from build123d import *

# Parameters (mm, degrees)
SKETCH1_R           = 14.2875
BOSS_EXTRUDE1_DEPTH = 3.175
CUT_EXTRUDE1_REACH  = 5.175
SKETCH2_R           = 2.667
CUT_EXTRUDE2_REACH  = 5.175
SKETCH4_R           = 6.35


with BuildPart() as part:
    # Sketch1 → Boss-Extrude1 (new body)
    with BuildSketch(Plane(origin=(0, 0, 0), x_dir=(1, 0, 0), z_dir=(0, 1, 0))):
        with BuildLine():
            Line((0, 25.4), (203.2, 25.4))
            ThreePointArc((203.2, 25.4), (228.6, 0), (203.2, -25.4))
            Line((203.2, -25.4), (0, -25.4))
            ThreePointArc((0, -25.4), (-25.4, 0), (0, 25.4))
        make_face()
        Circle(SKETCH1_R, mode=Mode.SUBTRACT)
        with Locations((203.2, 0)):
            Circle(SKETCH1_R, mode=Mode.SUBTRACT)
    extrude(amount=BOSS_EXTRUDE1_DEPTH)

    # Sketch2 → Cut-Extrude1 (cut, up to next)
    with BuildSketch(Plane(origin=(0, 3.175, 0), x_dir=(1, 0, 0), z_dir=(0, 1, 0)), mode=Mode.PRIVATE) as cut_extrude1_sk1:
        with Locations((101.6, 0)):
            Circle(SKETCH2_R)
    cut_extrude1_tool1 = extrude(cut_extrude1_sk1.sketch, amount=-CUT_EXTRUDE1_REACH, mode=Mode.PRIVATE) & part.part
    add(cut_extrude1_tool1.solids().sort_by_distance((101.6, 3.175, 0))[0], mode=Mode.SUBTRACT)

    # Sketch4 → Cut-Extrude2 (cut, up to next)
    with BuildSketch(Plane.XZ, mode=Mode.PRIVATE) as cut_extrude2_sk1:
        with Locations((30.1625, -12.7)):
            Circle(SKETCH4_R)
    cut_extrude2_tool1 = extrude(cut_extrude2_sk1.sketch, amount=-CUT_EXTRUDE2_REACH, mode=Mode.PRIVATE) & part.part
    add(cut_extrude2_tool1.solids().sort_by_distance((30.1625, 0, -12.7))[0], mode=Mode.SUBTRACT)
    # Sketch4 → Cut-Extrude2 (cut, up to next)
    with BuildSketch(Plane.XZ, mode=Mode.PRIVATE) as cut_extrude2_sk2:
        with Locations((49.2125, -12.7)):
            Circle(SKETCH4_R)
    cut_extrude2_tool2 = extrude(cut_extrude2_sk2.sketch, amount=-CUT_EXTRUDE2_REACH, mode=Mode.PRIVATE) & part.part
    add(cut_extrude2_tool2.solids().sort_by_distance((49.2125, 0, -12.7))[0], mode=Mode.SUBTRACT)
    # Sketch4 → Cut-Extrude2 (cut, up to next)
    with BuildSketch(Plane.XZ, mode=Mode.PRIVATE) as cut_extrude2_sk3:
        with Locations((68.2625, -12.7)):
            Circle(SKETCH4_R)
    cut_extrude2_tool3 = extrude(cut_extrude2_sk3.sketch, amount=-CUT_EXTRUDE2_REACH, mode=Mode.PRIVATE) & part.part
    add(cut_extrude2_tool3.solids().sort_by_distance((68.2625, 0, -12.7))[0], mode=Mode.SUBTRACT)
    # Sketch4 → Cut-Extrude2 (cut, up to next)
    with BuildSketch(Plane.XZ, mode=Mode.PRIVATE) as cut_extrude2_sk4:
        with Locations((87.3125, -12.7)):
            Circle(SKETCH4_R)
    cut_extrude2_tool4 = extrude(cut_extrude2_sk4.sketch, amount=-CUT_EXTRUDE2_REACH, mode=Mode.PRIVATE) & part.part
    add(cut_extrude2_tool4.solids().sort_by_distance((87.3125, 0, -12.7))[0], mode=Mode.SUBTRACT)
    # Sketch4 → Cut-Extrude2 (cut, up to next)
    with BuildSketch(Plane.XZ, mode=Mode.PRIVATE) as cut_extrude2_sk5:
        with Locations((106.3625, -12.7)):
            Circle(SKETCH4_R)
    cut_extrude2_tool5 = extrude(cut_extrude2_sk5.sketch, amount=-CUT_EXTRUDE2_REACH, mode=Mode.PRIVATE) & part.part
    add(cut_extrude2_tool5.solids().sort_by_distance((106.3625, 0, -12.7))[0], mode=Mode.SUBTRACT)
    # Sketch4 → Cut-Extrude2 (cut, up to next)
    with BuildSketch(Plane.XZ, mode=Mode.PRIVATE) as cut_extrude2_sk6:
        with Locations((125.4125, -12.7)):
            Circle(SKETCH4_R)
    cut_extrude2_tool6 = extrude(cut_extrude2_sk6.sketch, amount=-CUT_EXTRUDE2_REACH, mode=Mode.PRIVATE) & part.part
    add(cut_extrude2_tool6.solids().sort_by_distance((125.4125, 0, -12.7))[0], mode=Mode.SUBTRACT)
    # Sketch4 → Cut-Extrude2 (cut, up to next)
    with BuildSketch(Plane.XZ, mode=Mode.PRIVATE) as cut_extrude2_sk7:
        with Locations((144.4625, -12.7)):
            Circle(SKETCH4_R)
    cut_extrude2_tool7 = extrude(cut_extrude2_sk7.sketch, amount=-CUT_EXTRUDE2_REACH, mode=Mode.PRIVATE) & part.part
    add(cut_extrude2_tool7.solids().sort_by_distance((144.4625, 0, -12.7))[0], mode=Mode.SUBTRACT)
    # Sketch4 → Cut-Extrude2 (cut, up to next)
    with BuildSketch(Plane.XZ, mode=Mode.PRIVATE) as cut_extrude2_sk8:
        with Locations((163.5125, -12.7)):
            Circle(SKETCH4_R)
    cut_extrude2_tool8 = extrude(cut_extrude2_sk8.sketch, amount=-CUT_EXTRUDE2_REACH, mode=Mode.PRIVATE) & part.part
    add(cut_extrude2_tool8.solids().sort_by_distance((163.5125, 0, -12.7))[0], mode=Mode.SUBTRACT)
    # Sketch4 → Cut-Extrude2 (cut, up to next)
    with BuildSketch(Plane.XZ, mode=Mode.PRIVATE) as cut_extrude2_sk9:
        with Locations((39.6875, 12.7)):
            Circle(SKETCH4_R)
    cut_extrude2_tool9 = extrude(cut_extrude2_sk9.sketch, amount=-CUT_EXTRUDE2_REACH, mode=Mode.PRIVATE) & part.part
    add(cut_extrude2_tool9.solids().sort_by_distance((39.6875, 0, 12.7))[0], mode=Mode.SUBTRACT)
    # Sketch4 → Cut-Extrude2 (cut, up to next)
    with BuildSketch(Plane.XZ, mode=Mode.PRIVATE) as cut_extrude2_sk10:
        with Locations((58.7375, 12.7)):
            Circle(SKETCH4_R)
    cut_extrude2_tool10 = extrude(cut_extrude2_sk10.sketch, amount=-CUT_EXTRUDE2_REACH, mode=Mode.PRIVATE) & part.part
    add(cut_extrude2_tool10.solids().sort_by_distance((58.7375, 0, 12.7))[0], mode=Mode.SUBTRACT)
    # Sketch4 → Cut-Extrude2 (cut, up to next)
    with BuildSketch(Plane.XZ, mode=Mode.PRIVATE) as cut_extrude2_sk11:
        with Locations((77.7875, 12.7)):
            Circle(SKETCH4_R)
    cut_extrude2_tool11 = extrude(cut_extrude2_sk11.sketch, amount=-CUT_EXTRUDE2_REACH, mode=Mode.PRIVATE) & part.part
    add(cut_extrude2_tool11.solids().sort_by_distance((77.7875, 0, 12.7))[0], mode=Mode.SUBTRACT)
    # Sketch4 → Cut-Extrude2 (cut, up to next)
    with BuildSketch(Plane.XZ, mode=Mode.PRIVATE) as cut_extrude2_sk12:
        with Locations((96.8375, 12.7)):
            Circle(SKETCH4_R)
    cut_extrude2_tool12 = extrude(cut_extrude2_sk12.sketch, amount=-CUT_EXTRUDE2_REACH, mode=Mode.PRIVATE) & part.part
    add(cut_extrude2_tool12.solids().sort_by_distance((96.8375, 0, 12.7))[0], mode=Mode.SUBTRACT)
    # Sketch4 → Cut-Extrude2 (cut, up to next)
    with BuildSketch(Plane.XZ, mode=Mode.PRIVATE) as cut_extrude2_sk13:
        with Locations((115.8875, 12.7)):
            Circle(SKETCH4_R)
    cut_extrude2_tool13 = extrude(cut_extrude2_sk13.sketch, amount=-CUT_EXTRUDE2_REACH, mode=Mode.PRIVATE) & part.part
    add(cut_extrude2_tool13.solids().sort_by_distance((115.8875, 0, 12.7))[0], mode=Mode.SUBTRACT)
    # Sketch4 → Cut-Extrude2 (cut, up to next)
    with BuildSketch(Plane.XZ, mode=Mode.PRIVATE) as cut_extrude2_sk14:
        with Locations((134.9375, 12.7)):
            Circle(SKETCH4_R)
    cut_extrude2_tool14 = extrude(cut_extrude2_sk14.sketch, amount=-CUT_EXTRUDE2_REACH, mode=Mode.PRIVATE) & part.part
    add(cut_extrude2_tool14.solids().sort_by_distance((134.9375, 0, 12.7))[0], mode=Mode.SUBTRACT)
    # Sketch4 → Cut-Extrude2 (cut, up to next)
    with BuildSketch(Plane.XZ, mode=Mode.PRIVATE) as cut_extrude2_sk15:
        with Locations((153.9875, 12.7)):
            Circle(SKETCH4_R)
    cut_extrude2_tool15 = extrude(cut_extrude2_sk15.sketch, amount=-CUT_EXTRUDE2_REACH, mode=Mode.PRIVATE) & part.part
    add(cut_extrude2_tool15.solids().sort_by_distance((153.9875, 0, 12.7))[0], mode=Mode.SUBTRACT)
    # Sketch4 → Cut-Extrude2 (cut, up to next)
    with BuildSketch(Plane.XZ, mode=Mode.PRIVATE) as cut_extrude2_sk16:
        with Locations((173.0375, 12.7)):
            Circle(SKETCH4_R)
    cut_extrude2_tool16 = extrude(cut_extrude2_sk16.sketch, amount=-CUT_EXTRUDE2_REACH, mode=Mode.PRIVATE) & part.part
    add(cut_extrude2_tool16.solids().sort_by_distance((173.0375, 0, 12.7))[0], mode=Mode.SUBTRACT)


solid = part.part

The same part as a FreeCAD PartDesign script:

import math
import FreeCAD as App
import Part
import Sketcher

V = App.Vector
Q = App.Units.Quantity

doc = App.newDocument("Part")
body = doc.addObject("PartDesign::Body", "Body")

# Sketch on XZ plane
sketch1 = doc.addObject("Sketcher::SketchObject", "Sketch")
body.addObject(sketch1)
sketch1.AttachmentSupport = (doc.XZ_Plane, [""])
sketch1.MapMode = "FlatFace"
sketch1.addGeometry([
    Part.LineSegment(V(203, -25, 0), V(0, -25, 0)),  # 0
    Part.ArcOfCircle(Part.Circle(V(0, 0, 0), V(0, 0, 1), 25), math.radians(90), math.radians(270)),  # 1
    Part.LineSegment(V(0, 25, 0), V(203, 25, 0)),  # 2
    Part.ArcOfCircle(Part.Circle(V(203, 0, 0), V(0, 0, 1), 25), math.radians(-90), math.radians(90)),  # 3
    Part.Circle(V(203, 0, 0), V(0, 0, 1), 14),  # 4
    Part.Circle(V(0, 0, 0), V(0, 0, 1), 14),  # 5
], False)
sketch1.addConstraint([
    Sketcher.Constraint("Tangent", 0, 2, 1, 2),
    Sketcher.Constraint("Tangent", 1, 1, 2, 1),
    Sketcher.Constraint("Tangent", 2, 2, 3, 2),
    Sketcher.Constraint("Tangent", 3, 1, 0, 1),
    Sketcher.Constraint("Horizontal", 0),
    Sketcher.Constraint("Horizontal", 2),
    Sketcher.Constraint("Coincident", 1, 3, -1, 1),
    Sketcher.Constraint("Coincident", 5, 3, -1, 1),
    Sketcher.Constraint("Coincident", 4, 3, 3, 3),
    Sketcher.Constraint("Equal", 4, 5),
    Sketcher.Constraint("Radius", 1, Q("1 in")),
    Sketcher.Constraint("DistanceX", 0, 2, 0, 1, Q("8 in")),
    Sketcher.Constraint("Diameter", 4, Q("1.125 in")),
])
pad1 = doc.addObject("PartDesign::Pad", "Pad")
body.addObject(pad1)
pad1.Profile = sketch1
pad1.Length = Q("0.125 in")
pad1.Reversed = True

# Sketch on XZ plane
sketch2 = doc.addObject("Sketcher::SketchObject", "Sketch001")
body.addObject(sketch2)
sketch2.AttachmentSupport = (doc.XZ_Plane, [""])
sketch2.MapMode = "FlatFace"
sketch2.AttachmentOffset = App.Placement(V(0, 0, -0.125 * 25.4), App.Rotation())
sketch2.addGeometry(Part.Circle(V(101.6, 0, 0), V(0, 0, 1), 2.7), False)
sketch2.addConstraint([
    Sketcher.Constraint("PointOnObject", 0, 3, -1),
    Sketcher.Constraint("Diameter", 0, Q("0.21 in")),
    Sketcher.Constraint("DistanceX", -1, 1, 0, 3, Q("4 in")),
])
pocket1 = doc.addObject("PartDesign::Pocket", "Pocket")
body.addObject(pocket1)
pocket1.Profile = sketch2
pocket1.Type = "UpToFirst"
pocket1.Reversed = True

# Sketch on XZ plane
sketch3 = doc.addObject("Sketcher::SketchObject", "Sketch002")
body.addObject(sketch3)
sketch3.AttachmentSupport = (doc.XZ_Plane, [""])
sketch3.MapMode = "FlatFace"
sketch3.addGeometry(Part.Circle(V(30, -13, 0), V(0, 0, 1), 6), False)
sketch3.addConstraint([
    Sketcher.Constraint("Diameter", 0, Q("0.5 in")),
    Sketcher.Constraint("DistanceY", 0, 3, -1, 1, Q("0.5 in")),
    Sketcher.Constraint("DistanceX", -1, 1, 0, 3, Q("1.1875 in")),
])
pocket2 = doc.addObject("PartDesign::Pocket", "Pocket001")
body.addObject(pocket2)
pocket2.Profile = sketch3
pocket2.Type = "UpToFirst"

# Sketch on XZ plane
sketch4 = doc.addObject("Sketcher::SketchObject", "Sketch003")
body.addObject(sketch4)
sketch4.AttachmentSupport = (doc.XZ_Plane, [""])
sketch4.MapMode = "FlatFace"
sketch4.addGeometry(Part.Circle(V(49, -13, 0), V(0, 0, 1), 6), False)
sketch4.addConstraint([
    Sketcher.Constraint("Diameter", 0, Q("0.5 in")),
    Sketcher.Constraint("DistanceY", 0, 3, -1, 1, Q("0.5 in")),
    Sketcher.Constraint("DistanceX", -1, 1, 0, 3, Q("1.9375 in")),
])
pocket3 = doc.addObject("PartDesign::Pocket", "Pocket002")
body.addObject(pocket3)
pocket3.Profile = sketch4
pocket3.Type = "UpToFirst"

# Sketch on XZ plane
sketch5 = doc.addObject("Sketcher::SketchObject", "Sketch004")
body.addObject(sketch5)
sketch5.AttachmentSupport = (doc.XZ_Plane, [""])
sketch5.MapMode = "FlatFace"
sketch5.addGeometry(Part.Circle(V(68, -13, 0), V(0, 0, 1), 6), False)
sketch5.addConstraint([
    Sketcher.Constraint("Diameter", 0, Q("0.5 in")),
    Sketcher.Constraint("DistanceY", 0, 3, -1, 1, Q("0.5 in")),
    Sketcher.Constraint("DistanceX", -1, 1, 0, 3, Q("2.6875 in")),
])
pocket4 = doc.addObject("PartDesign::Pocket", "Pocket003")
body.addObject(pocket4)
pocket4.Profile = sketch5
pocket4.Type = "UpToFirst"

# Sketch on XZ plane
sketch6 = doc.addObject("Sketcher::SketchObject", "Sketch005")
body.addObject(sketch6)
sketch6.AttachmentSupport = (doc.XZ_Plane, [""])
sketch6.MapMode = "FlatFace"
sketch6.addGeometry(Part.Circle(V(87, -13, 0), V(0, 0, 1), 6), False)
sketch6.addConstraint([
    Sketcher.Constraint("Diameter", 0, Q("0.5 in")),
    Sketcher.Constraint("DistanceY", 0, 3, -1, 1, Q("0.5 in")),
    Sketcher.Constraint("DistanceX", -1, 1, 0, 3, Q("3.4375 in")),
])
pocket5 = doc.addObject("PartDesign::Pocket", "Pocket004")
body.addObject(pocket5)
pocket5.Profile = sketch6
pocket5.Type = "UpToFirst"

# Sketch on XZ plane
sketch7 = doc.addObject("Sketcher::SketchObject", "Sketch006")
body.addObject(sketch7)
sketch7.AttachmentSupport = (doc.XZ_Plane, [""])
sketch7.MapMode = "FlatFace"
sketch7.addGeometry(Part.Circle(V(106, -13, 0), V(0, 0, 1), 6), False)
sketch7.addConstraint([
    Sketcher.Constraint("Diameter", 0, Q("0.5 in")),
    Sketcher.Constraint("DistanceY", 0, 3, -1, 1, Q("0.5 in")),
    Sketcher.Constraint("DistanceX", -1, 1, 0, 3, Q("4.1875 in")),
])
pocket6 = doc.addObject("PartDesign::Pocket", "Pocket005")
body.addObject(pocket6)
pocket6.Profile = sketch7
pocket6.Type = "UpToFirst"

# Sketch on XZ plane
sketch8 = doc.addObject("Sketcher::SketchObject", "Sketch007")
body.addObject(sketch8)
sketch8.AttachmentSupport = (doc.XZ_Plane, [""])
sketch8.MapMode = "FlatFace"
sketch8.addGeometry(Part.Circle(V(125, -13, 0), V(0, 0, 1), 6), False)
sketch8.addConstraint([
    Sketcher.Constraint("Diameter", 0, Q("0.5 in")),
    Sketcher.Constraint("DistanceY", 0, 3, -1, 1, Q("0.5 in")),
    Sketcher.Constraint("DistanceX", -1, 1, 0, 3, Q("4.9375 in")),
])
pocket7 = doc.addObject("PartDesign::Pocket", "Pocket006")
body.addObject(pocket7)
pocket7.Profile = sketch8
pocket7.Type = "UpToFirst"

# Sketch on XZ plane
sketch9 = doc.addObject("Sketcher::SketchObject", "Sketch008")
body.addObject(sketch9)
sketch9.AttachmentSupport = (doc.XZ_Plane, [""])
sketch9.MapMode = "FlatFace"
sketch9.addGeometry(Part.Circle(V(144, -13, 0), V(0, 0, 1), 6), False)
sketch9.addConstraint([
    Sketcher.Constraint("Diameter", 0, Q("0.5 in")),
    Sketcher.Constraint("DistanceY", 0, 3, -1, 1, Q("0.5 in")),
    Sketcher.Constraint("DistanceX", -1, 1, 0, 3, Q("5.6875 in")),
])
pocket8 = doc.addObject("PartDesign::Pocket", "Pocket007")
body.addObject(pocket8)
pocket8.Profile = sketch9
pocket8.Type = "UpToFirst"

# Sketch on XZ plane
sketch10 = doc.addObject("Sketcher::SketchObject", "Sketch009")
body.addObject(sketch10)
sketch10.AttachmentSupport = (doc.XZ_Plane, [""])
sketch10.MapMode = "FlatFace"
sketch10.addGeometry(Part.Circle(V(164, -13, 0), V(0, 0, 1), 6), False)
sketch10.addConstraint([
    Sketcher.Constraint("Diameter", 0, Q("0.5 in")),
    Sketcher.Constraint("DistanceY", 0, 3, -1, 1, Q("0.5 in")),
    Sketcher.Constraint("DistanceX", -1, 1, 0, 3, Q("6.4375 in")),
])
pocket9 = doc.addObject("PartDesign::Pocket", "Pocket008")
body.addObject(pocket9)
pocket9.Profile = sketch10
pocket9.Type = "UpToFirst"

# Sketch on XZ plane
sketch11 = doc.addObject("Sketcher::SketchObject", "Sketch010")
body.addObject(sketch11)
sketch11.AttachmentSupport = (doc.XZ_Plane, [""])
sketch11.MapMode = "FlatFace"
sketch11.addGeometry(Part.Circle(V(40, 13, 0), V(0, 0, 1), 6), False)
sketch11.addConstraint([
    Sketcher.Constraint("Diameter", 0, Q("0.5 in")),
    Sketcher.Constraint("DistanceY", -1, 1, 0, 3, Q("0.5 in")),
    Sketcher.Constraint("DistanceX", -1, 1, 0, 3, Q("1.5625 in")),
])
pocket10 = doc.addObject("PartDesign::Pocket", "Pocket009")
body.addObject(pocket10)
pocket10.Profile = sketch11
pocket10.Type = "UpToFirst"

# Sketch on XZ plane
sketch12 = doc.addObject("Sketcher::SketchObject", "Sketch011")
body.addObject(sketch12)
sketch12.AttachmentSupport = (doc.XZ_Plane, [""])
sketch12.MapMode = "FlatFace"
sketch12.addGeometry(Part.Circle(V(59, 13, 0), V(0, 0, 1), 6), False)
sketch12.addConstraint([
    Sketcher.Constraint("Diameter", 0, Q("0.5 in")),
    Sketcher.Constraint("DistanceY", -1, 1, 0, 3, Q("0.5 in")),
    Sketcher.Constraint("DistanceX", -1, 1, 0, 3, Q("2.3125 in")),
])
pocket11 = doc.addObject("PartDesign::Pocket", "Pocket010")
body.addObject(pocket11)
pocket11.Profile = sketch12
pocket11.Type = "UpToFirst"

# Sketch on XZ plane
sketch13 = doc.addObject("Sketcher::SketchObject", "Sketch012")
body.addObject(sketch13)
sketch13.AttachmentSupport = (doc.XZ_Plane, [""])
sketch13.MapMode = "FlatFace"
sketch13.addGeometry(Part.Circle(V(78, 13, 0), V(0, 0, 1), 6), False)
sketch13.addConstraint([
    Sketcher.Constraint("Diameter", 0, Q("0.5 in")),
    Sketcher.Constraint("DistanceY", -1, 1, 0, 3, Q("0.5 in")),
    Sketcher.Constraint("DistanceX", -1, 1, 0, 3, Q("3.0625 in")),
])
pocket12 = doc.addObject("PartDesign::Pocket", "Pocket011")
body.addObject(pocket12)
pocket12.Profile = sketch13
pocket12.Type = "UpToFirst"

# Sketch on XZ plane
sketch14 = doc.addObject("Sketcher::SketchObject", "Sketch013")
body.addObject(sketch14)
sketch14.AttachmentSupport = (doc.XZ_Plane, [""])
sketch14.MapMode = "FlatFace"
sketch14.addGeometry(Part.Circle(V(97, 13, 0), V(0, 0, 1), 6), False)
sketch14.addConstraint([
    Sketcher.Constraint("Diameter", 0, Q("0.5 in")),
    Sketcher.Constraint("DistanceY", -1, 1, 0, 3, Q("0.5 in")),
    Sketcher.Constraint("DistanceX", -1, 1, 0, 3, Q("3.8125 in")),
])
pocket13 = doc.addObject("PartDesign::Pocket", "Pocket012")
body.addObject(pocket13)
pocket13.Profile = sketch14
pocket13.Type = "UpToFirst"

# Sketch on XZ plane
sketch15 = doc.addObject("Sketcher::SketchObject", "Sketch014")
body.addObject(sketch15)
sketch15.AttachmentSupport = (doc.XZ_Plane, [""])
sketch15.MapMode = "FlatFace"
sketch15.addGeometry(Part.Circle(V(116, 13, 0), V(0, 0, 1), 6), False)
sketch15.addConstraint([
    Sketcher.Constraint("Diameter", 0, Q("0.5 in")),
    Sketcher.Constraint("DistanceY", -1, 1, 0, 3, Q("0.5 in")),
    Sketcher.Constraint("DistanceX", -1, 1, 0, 3, Q("4.5625 in")),
])
pocket14 = doc.addObject("PartDesign::Pocket", "Pocket013")
body.addObject(pocket14)
pocket14.Profile = sketch15
pocket14.Type = "UpToFirst"

# Sketch on XZ plane
sketch16 = doc.addObject("Sketcher::SketchObject", "Sketch015")
body.addObject(sketch16)
sketch16.AttachmentSupport = (doc.XZ_Plane, [""])
sketch16.MapMode = "FlatFace"
sketch16.addGeometry(Part.Circle(V(135, 13, 0), V(0, 0, 1), 6), False)
sketch16.addConstraint([
    Sketcher.Constraint("Diameter", 0, Q("0.5 in")),
    Sketcher.Constraint("DistanceY", -1, 1, 0, 3, Q("0.5 in")),
    Sketcher.Constraint("DistanceX", -1, 1, 0, 3, Q("5.3125 in")),
])
pocket15 = doc.addObject("PartDesign::Pocket", "Pocket014")
body.addObject(pocket15)
pocket15.Profile = sketch16
pocket15.Type = "UpToFirst"

# Sketch on XZ plane
sketch17 = doc.addObject("Sketcher::SketchObject", "Sketch016")
body.addObject(sketch17)
sketch17.AttachmentSupport = (doc.XZ_Plane, [""])
sketch17.MapMode = "FlatFace"
sketch17.addGeometry(Part.Circle(V(154, 13, 0), V(0, 0, 1), 6), False)
sketch17.addConstraint([
    Sketcher.Constraint("Diameter", 0, Q("0.5 in")),
    Sketcher.Constraint("DistanceY", -1, 1, 0, 3, Q("0.5 in")),
    Sketcher.Constraint("DistanceX", -1, 1, 0, 3, Q("6.0625 in")),
])
pocket16 = doc.addObject("PartDesign::Pocket", "Pocket015")
body.addObject(pocket16)
pocket16.Profile = sketch17
pocket16.Type = "UpToFirst"

# Sketch on XZ plane
sketch18 = doc.addObject("Sketcher::SketchObject", "Sketch017")
body.addObject(sketch18)
sketch18.AttachmentSupport = (doc.XZ_Plane, [""])
sketch18.MapMode = "FlatFace"
sketch18.addGeometry(Part.Circle(V(173, 13, 0), V(0, 0, 1), 6), False)
sketch18.addConstraint([
    Sketcher.Constraint("Diameter", 0, Q("0.5 in")),
    Sketcher.Constraint("DistanceY", -1, 1, 0, 3, Q("0.5 in")),
    Sketcher.Constraint("DistanceX", -1, 1, 0, 3, Q("6.8125 in")),
])
pocket17 = doc.addObject("PartDesign::Pocket", "Pocket016")
body.addObject(pocket17)
pocket17.Profile = sketch18
pocket17.Type = "UpToFirst"

doc.recompute()
